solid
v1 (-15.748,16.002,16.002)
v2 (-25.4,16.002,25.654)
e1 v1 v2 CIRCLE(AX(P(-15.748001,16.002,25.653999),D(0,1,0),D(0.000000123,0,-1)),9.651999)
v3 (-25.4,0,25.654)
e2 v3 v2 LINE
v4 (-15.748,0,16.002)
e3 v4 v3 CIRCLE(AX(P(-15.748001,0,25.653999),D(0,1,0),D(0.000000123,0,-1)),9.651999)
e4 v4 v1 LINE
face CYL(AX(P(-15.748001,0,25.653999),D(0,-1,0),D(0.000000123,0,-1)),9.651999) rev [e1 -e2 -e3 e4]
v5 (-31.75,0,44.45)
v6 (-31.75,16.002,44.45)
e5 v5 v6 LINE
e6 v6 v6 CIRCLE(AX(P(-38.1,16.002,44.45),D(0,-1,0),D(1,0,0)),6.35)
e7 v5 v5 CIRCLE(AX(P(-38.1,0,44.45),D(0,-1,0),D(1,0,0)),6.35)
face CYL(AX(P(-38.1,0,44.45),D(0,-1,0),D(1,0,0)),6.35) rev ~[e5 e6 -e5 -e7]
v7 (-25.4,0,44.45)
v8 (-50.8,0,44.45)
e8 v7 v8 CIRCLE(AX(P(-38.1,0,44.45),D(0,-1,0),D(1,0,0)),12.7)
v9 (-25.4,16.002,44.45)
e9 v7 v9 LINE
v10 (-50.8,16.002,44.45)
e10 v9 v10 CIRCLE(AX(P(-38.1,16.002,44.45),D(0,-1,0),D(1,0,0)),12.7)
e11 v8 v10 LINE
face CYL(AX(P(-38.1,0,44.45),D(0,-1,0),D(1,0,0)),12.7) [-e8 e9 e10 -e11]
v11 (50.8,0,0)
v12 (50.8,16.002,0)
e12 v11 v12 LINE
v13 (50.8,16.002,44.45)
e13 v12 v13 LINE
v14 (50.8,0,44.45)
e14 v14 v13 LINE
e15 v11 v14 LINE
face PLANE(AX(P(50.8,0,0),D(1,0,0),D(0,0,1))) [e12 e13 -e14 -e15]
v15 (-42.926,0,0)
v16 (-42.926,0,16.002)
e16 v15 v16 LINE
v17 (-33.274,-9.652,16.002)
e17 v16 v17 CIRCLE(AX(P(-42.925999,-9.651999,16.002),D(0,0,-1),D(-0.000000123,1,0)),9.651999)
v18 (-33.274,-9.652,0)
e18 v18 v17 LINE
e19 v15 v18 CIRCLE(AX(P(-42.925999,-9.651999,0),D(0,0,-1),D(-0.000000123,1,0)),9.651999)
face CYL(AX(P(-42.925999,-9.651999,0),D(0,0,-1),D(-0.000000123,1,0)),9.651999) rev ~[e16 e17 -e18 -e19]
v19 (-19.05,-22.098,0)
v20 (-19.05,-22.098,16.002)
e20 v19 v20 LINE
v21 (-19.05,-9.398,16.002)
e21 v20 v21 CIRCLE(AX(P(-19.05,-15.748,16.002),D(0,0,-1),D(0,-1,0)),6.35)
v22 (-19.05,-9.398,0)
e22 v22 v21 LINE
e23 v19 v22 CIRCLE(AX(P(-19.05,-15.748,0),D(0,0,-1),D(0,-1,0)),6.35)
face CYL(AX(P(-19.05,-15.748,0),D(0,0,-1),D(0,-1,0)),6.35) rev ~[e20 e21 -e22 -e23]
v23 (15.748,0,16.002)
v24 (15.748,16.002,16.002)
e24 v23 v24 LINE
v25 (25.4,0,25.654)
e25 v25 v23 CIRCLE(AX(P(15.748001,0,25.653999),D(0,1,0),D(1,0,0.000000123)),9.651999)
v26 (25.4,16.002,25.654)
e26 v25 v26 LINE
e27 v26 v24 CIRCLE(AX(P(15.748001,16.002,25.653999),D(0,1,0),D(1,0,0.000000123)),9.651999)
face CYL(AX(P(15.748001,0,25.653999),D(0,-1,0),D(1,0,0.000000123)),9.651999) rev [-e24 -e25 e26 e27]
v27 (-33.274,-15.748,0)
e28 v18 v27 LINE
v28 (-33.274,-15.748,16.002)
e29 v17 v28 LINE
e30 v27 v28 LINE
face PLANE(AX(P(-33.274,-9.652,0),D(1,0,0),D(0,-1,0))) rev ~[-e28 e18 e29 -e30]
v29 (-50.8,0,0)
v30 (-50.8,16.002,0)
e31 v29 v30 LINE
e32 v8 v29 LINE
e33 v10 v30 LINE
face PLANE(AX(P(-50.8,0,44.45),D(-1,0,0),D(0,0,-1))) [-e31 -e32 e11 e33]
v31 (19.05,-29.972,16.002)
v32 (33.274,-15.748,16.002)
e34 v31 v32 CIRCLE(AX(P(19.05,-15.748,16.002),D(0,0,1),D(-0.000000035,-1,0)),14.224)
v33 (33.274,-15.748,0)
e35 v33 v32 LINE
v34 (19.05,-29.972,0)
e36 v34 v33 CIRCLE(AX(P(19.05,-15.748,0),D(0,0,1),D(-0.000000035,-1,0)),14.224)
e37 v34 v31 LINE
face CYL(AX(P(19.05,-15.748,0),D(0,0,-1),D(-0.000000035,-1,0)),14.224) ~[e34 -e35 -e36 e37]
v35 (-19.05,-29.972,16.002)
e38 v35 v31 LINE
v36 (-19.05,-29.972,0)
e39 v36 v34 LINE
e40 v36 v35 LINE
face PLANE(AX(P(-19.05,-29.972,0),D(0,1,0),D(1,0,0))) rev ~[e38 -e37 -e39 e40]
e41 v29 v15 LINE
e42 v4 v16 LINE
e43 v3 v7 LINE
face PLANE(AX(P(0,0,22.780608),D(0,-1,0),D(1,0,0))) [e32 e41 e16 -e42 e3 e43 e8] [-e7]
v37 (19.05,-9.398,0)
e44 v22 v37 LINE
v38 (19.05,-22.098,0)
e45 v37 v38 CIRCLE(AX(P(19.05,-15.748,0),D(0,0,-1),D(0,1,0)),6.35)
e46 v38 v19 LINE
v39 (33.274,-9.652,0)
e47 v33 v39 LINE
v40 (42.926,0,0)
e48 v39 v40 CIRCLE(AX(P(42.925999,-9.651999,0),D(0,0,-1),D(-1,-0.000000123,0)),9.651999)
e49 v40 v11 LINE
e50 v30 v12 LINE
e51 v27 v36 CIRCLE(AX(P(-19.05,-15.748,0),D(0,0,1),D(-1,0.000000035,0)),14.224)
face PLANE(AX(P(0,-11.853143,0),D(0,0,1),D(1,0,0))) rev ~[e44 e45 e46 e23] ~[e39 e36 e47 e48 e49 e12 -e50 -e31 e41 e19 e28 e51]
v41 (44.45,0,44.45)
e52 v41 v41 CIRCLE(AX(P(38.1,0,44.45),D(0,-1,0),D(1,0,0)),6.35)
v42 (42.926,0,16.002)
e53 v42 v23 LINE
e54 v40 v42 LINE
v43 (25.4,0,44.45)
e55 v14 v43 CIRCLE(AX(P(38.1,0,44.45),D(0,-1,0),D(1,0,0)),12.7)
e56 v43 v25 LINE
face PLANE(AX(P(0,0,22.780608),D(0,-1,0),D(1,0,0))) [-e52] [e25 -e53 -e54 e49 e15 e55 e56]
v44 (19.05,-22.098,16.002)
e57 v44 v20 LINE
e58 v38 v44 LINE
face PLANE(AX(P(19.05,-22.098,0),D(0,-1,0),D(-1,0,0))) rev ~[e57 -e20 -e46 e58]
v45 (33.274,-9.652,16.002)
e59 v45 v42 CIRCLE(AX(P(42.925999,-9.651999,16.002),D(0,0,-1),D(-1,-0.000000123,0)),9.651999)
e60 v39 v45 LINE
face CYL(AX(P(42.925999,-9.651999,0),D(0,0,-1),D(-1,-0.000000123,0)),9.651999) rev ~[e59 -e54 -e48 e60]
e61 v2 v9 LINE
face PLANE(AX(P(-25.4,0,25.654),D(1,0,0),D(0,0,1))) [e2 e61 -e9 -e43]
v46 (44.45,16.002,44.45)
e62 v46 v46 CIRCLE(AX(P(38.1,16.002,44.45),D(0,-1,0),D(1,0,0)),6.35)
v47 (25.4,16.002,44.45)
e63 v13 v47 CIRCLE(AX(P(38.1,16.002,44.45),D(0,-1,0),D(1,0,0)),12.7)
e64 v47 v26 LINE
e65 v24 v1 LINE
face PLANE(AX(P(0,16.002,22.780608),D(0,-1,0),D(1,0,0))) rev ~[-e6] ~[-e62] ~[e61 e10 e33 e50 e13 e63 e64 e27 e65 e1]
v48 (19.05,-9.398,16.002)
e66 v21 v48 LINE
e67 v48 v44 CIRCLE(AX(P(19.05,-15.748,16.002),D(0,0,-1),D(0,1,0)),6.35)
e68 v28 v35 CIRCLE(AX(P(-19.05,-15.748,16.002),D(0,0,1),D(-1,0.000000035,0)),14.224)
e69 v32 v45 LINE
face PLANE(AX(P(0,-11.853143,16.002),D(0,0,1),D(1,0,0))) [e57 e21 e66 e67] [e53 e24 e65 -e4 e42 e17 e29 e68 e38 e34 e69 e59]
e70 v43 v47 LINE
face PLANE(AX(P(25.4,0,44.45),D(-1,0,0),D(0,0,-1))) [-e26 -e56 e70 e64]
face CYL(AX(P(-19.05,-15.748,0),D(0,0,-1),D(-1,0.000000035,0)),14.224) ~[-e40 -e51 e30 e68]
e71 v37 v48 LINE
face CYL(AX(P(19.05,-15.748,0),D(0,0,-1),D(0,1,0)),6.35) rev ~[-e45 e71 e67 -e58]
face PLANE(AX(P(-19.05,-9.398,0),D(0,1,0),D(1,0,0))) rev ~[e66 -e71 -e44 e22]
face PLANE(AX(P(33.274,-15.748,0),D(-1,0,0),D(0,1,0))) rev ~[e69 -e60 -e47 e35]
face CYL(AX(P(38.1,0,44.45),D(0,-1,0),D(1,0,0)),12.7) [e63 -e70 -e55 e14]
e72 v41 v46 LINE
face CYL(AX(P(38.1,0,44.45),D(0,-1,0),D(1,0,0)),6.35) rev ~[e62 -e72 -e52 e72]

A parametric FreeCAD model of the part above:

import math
import FreeCAD as App
import Part
import Sketcher

V = App.Vector
Q = App.Units.Quantity

doc = App.newDocument("Part")
body = doc.addObject("PartDesign::Body", "Body")

sketch1 = doc.addObject("Sketcher::SketchObject", "Sketch")
body.addObject(sketch1)
sketch1.AttachmentSupport = (doc.XZ_Plane, [""])
sketch1.MapMode = "FlatFace"
sketch1.addGeometry([
    Part.ArcOfCircle(Part.Circle(V(-38, 44, 0), V(0, 0, 1), 13), math.radians(0), math.radians(180)),
    Part.LineSegment(V(-51, 44, 0), V(-51, 0, 0)),
    Part.LineSegment(V(-51, 0, 0), V(51, 0, 0)),
    Part.LineSegment(V(51, 0, 0), V(51, 44, 0)),
    Part.ArcOfCircle(Part.Circle(V(38, 44, 0), V(0, 0, 1), 13), math.radians(0), math.radians(180)),
    Part.LineSegment(V(25, 44, 0), V(25, 26, 0)),
    Part.ArcOfCircle(Part.Circle(V(16, 26, 0), V(0, 0, 1), 10), math.radians(-90), math.radians(0)),
    Part.LineSegment(V(16, 16, 0), V(-16, 16, 0)),
    Part.ArcOfCircle(Part.Circle(V(-16, 26, 0), V(0, 0, 1), 10), math.radians(180), math.radians(270)),
    Part.LineSegment(V(-25, 26, 0), V(-25, 44, 0)),
    Part.Circle(V(-38, 44, 0), V(0, 0, 1), 6),
    Part.Circle(V(38, 44, 0), V(0, 0, 1), 6),
], False)
sketch1.addConstraint([
    Sketcher.Constraint("Tangent", 0, 2, 1, 1),
    Sketcher.Constraint("Coincident", 1, 2, 2, 1),
    Sketcher.Constraint("Coincident", 2, 2, 3, 1),
    Sketcher.Constraint("Tangent", 3, 2, 4, 1),
    Sketcher.Constraint("Tangent", 4, 2, 5, 1),
    Sketcher.Constraint("Tangent", 5, 2, 6, 2),
    Sketcher.Constraint("Tangent", 6, 1, 7, 1),
    Sketcher.Constraint("Tangent", 7, 2, 8, 2),
    Sketcher.Constraint("Tangent", 8, 1, 9, 1),
    Sketcher.Constraint("Tangent", 9, 2, 0, 1),
    Sketcher.Constraint("Vertical", 1),
    Sketcher.Constraint("Horizontal", 2),
    Sketcher.Constraint("Vertical", 3),
    Sketcher.Constraint("Vertical", 5),
    Sketcher.Constraint("Horizontal", 7),
    Sketcher.Constraint("Vertical", 9),
    Sketcher.Constraint("Coincident", 10, 3, 0, 3),
    Sketcher.Constraint("Coincident", 11, 3, 4, 3),
    Sketcher.Constraint("Equal", 0, 4),
    Sketcher.Constraint("Equal", 6, 8),
    Sketcher.Constraint("Equal", 10, 11),
    Sketcher.Constraint("Symmetric", 1, 2, 2, 2, -1, 1),
    Sketcher.Constraint("Horizontal", 0, 3, 4, 3),
    Sketcher.Constraint("Diameter", 10, Q("0.5 in")),
    Sketcher.Constraint("Radius", 0, Q("0.5 in")),
    Sketcher.Constraint("DistanceX", 2, 1, 2, 2, Q("4 in")),
    Sketcher.Constraint("Radius", 6, Q("0.38 in")),
    Sketcher.Constraint("DistanceY", 1, 2, 1, 1, Q("1.75 in")),
    Sketcher.Constraint("DistanceY", 5, 2, 5, 1, Q("0.74 in")),
])
pad1 = doc.addObject("PartDesign::Pad", "Pad")
body.addObject(pad1)
pad1.Profile = sketch1
pad1.Length = Q("0.63 in")
pad1.Reversed = True

sketch2 = doc.addObject("Sketcher::SketchObject", "Sketch001")
body.addObject(sketch2)
sketch2.AttachmentSupport = (doc.XY_Plane, [""])
sketch2.MapMode = "FlatFace"
sketch2.addGeometry([
    Part.ArcOfCircle(Part.Circle(V(-43, -10, 0), V(0, 0, 1), 10), math.radians(0), math.radians(90)),
    Part.LineSegment(V(-33, -10, 0), V(-33, -16, 0)),
    Part.ArcOfCircle(Part.Circle(V(-19, -16, 0), V(0, 0, 1), 14), math.radians(180), math.radians(270)),
    Part.LineSegment(V(-19, -30, 0), V(19, -30, 0)),
    Part.ArcOfCircle(Part.Circle(V(19, -16, 0), V(0, 0, 1), 14), math.radians(-90), math.radians(0)),
    Part.LineSegment(V(33, -16, 0), V(33, -10, 0)),
    Part.ArcOfCircle(Part.Circle(V(43, -10, 0), V(0, 0, 1), 10), math.radians(90), math.radians(180)),
    Part.LineSegment(V(43, 0, 0), V(-43, 0, 0)),
    Part.LineSegment(V(19, -22, 0), V(-19, -22, 0)),
    Part.ArcOfCircle(Part.Circle(V(-19, -16, 0), V(0, 0, 1), 6), math.radians(90), math.radians(270)),
    Part.LineSegment(V(-19, -9, 0), V(19, -9, 0)),
    Part.ArcOfCircle(Part.Circle(V(19, -16, 0), V(0, 0, 1), 6), math.radians(-90), math.radians(90)),
], False)
sketch2.addConstraint([
    Sketcher.Constraint("Tangent", 0, 1, 1, 1),
    Sketcher.Constraint("Tangent", 1, 2, 2, 1),
    Sketcher.Constraint("Tangent", 2, 2, 3, 1),
    Sketcher.Constraint("Tangent", 3, 2, 4, 1),
    Sketcher.Constraint("Tangent", 4, 2, 5, 1),
    Sketcher.Constraint("Tangent", 5, 2, 6, 2),
    Sketcher.Constraint("Tangent", 6, 1, 7, 1),
    Sketcher.Constraint("Tangent", 7, 2, 0, 2),
    Sketcher.Constraint("Tangent", 8, 2, 9, 2),
    Sketcher.Constraint("Tangent", 9, 1, 10, 1),
    Sketcher.Constraint("Tangent", 10, 2, 11, 2),
    Sketcher.Constraint("Tangent", 11, 1, 8, 1),
    Sketcher.Constraint("Vertical", 1),
    Sketcher.Constraint("Horizontal", 3),
    Sketcher.Constraint("Vertical", 5),
    Sketcher.Constraint("Horizontal", 7),
    Sketcher.Constraint("Horizontal", 8),
    Sketcher.Constraint("Horizontal", 10),
    Sketcher.Constraint("Coincident", 9, 3, 2, 3),
    Sketcher.Constraint("Coincident", 11, 3, 4, 3),
    Sketcher.Constraint("Equal", 0, 6),
    Sketcher.Constraint("Symmetric", 6, 1, 7, 2, -1, 1),
    Sketcher.Constraint("Radius", 0, Q("0.38 in")),
    Sketcher.Constraint("Radius", 2, Q("0.56 in")),
    Sketcher.Constraint("Radius", 9, Q("0.25 in")),
    Sketcher.Constraint("DistanceX", 3, 1, 3, 2, Q("1.5 in")),
    Sketcher.Constraint("DistanceY", 1, 2, 1, 1, Q("0.24 in")),
])
pad2 = doc.addObject("PartDesign::Pad", "Pad001")
body.addObject(pad2)
pad2.Profile = sketch2
pad2.Length = Q("0.63 in")

doc.recompute()
